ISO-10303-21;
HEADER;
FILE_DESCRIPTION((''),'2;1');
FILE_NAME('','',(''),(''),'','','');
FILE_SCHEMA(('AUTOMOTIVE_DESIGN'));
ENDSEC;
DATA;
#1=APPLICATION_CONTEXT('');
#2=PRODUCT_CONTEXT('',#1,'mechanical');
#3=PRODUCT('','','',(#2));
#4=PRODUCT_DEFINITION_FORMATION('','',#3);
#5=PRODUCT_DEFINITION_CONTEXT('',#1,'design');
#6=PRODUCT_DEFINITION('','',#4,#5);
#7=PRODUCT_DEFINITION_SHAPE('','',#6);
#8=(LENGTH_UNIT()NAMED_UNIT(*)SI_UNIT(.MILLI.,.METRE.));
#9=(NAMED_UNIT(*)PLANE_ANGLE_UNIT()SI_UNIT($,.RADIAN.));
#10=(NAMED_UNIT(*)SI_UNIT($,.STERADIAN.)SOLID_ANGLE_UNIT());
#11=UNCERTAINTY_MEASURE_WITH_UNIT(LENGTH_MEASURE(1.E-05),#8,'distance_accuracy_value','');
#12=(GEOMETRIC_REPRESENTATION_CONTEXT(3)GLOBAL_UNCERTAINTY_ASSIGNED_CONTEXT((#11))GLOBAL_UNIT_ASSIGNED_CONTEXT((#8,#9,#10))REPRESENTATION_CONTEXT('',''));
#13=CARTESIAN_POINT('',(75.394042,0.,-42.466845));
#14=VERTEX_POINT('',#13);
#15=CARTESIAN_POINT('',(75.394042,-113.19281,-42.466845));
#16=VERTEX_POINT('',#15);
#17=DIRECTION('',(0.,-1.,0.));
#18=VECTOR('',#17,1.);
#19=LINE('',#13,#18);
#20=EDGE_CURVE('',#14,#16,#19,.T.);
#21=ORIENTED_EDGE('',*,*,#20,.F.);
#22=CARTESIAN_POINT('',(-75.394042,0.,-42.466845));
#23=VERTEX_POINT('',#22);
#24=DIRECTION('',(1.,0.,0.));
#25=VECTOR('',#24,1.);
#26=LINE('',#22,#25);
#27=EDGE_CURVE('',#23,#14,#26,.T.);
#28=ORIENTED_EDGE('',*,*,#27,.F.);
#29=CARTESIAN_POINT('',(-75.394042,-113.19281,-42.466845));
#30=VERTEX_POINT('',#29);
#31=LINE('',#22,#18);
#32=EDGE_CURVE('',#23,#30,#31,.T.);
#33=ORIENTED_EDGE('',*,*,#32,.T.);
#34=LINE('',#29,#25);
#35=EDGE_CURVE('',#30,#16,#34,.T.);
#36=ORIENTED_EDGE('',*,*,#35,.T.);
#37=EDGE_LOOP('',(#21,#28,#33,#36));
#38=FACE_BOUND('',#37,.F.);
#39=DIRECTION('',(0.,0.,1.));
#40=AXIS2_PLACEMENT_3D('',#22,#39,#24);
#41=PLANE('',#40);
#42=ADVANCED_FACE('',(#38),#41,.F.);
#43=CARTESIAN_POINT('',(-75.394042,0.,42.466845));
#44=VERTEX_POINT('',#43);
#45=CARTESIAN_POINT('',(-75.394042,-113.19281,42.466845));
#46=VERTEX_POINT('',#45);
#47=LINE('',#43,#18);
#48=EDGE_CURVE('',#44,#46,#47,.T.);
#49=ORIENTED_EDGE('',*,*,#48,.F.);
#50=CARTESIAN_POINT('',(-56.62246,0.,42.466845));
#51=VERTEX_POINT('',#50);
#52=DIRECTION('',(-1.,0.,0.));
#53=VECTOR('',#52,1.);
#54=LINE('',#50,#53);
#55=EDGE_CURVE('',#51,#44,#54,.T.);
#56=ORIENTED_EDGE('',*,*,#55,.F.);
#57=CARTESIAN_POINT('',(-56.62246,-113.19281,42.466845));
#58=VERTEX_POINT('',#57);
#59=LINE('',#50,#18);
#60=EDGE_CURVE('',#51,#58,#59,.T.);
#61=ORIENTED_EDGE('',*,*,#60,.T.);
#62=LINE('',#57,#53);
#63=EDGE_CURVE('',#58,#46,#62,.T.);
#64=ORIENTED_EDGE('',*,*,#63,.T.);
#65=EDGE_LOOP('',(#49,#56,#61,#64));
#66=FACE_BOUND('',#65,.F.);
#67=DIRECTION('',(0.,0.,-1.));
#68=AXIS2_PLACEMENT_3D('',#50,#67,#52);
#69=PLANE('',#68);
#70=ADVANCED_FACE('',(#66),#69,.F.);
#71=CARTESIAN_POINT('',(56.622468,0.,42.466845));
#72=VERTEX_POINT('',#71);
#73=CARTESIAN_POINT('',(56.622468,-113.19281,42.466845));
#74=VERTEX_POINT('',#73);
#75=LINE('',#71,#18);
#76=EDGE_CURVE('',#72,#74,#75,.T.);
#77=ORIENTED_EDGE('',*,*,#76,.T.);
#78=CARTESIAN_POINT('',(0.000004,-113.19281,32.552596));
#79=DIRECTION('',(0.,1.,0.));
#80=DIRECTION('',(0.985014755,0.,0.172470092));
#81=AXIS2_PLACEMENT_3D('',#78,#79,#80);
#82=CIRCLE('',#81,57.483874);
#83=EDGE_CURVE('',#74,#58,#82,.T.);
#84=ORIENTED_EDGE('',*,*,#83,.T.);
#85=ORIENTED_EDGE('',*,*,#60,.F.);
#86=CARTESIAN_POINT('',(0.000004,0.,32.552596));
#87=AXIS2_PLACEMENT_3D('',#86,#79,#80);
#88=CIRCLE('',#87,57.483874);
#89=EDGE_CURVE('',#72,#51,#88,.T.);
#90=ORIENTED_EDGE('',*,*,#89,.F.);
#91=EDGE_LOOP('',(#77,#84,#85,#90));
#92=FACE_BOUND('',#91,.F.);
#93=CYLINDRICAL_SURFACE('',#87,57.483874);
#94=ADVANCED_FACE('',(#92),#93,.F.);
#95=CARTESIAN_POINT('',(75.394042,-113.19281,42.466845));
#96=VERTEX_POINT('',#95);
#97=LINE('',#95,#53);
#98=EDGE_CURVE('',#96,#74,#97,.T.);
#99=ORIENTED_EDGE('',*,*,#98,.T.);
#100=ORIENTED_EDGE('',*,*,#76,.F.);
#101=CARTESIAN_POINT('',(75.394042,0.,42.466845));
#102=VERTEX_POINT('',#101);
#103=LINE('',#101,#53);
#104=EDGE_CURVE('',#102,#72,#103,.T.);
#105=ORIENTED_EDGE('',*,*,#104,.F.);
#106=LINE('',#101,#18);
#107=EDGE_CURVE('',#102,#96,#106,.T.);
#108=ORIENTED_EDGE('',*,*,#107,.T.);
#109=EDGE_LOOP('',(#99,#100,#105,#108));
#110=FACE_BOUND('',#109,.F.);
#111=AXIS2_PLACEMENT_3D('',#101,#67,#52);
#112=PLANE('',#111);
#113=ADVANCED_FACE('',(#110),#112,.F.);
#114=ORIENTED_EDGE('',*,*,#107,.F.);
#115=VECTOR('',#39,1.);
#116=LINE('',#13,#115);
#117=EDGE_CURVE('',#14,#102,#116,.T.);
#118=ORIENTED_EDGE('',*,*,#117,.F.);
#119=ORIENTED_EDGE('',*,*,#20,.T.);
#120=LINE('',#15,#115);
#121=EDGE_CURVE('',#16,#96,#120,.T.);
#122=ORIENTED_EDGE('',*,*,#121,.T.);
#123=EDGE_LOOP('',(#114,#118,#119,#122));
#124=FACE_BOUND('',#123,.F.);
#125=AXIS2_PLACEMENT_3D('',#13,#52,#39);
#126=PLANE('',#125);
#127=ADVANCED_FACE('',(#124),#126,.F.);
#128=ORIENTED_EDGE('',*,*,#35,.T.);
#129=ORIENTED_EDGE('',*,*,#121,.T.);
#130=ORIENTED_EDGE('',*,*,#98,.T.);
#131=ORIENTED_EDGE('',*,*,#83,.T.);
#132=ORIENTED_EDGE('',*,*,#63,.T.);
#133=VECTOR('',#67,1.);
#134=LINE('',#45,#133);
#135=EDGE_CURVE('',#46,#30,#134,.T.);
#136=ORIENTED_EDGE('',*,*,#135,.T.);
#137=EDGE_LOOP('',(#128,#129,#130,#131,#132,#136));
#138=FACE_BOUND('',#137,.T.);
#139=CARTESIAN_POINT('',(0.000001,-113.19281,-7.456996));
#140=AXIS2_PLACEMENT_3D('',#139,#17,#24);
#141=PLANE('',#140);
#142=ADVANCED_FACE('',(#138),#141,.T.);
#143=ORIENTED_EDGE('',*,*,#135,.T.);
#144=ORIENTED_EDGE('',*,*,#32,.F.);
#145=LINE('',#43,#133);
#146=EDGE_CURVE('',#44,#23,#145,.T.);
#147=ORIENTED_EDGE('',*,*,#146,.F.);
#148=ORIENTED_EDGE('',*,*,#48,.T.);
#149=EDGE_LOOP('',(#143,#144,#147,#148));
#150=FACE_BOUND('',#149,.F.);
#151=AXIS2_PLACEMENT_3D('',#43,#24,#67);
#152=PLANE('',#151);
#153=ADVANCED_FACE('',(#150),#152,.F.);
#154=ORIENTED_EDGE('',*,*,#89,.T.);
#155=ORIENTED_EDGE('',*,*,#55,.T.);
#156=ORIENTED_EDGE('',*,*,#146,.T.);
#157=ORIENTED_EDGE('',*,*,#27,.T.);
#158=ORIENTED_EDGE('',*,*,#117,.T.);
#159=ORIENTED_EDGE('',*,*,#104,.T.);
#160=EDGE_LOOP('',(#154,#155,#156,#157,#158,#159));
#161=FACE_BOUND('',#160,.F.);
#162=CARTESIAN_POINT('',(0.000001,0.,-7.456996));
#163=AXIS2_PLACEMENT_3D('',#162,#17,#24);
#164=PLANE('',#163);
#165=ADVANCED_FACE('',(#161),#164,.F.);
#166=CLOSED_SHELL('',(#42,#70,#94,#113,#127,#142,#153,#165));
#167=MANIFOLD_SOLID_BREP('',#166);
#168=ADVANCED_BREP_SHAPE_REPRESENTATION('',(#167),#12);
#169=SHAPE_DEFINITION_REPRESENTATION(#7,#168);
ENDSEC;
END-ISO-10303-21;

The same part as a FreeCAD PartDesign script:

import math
import FreeCAD as App
import Part
import Sketcher

V = App.Vector
Q = App.Units.Quantity

doc = App.newDocument("Part")
params = doc.addObject("Spreadsheet::Sheet", "Params")
for row, (alias, value) in enumerate([
    ("pad1_length", "113.19281 mm"),
], start=1):
    params.set(f"A{row}", alias)
    params.set(f"B{row}", "=" + value)
    params.setAlias(f"B{row}", alias)

body = doc.addObject("PartDesign::Body", "Body")

# Sketch on XZ plane
sketch1 = body.newObject("Sketcher::SketchObject", "Sketch")
sketch1.AttachmentSupport = (doc.getObject("XZ_Plane"), [""])
sketch1.MapMode = "FlatFace"
sketch1.addGeometry(Part.LineSegment(V(75.394042, -42.466845, 0), V(75.394042, 42.466845, 0)), False)
sketch1.addGeometry(Part.LineSegment(V(75.394042, 42.466845, 0), V(56.622468, 42.466845, 0)), False)
sketch1.addGeometry(Part.ArcOfCircle(Part.Circle(V(0.000004, 32.552596, 0), V(0, 0, 1), 57.483874), math.radians(170.068533), math.radians(369.931467)), False)
sketch1.addGeometry(Part.LineSegment(V(-56.62246, 42.466845, 0), V(-75.394042, 42.466845, 0)), False)
sketch1.addGeometry(Part.LineSegment(V(-75.394042, 42.466845, 0), V(-75.394042, -42.466845, 0)), False)
sketch1.addGeometry(Part.LineSegment(V(-75.394042, -42.466845, 0), V(75.394042, -42.466845, 0)), False)
sketch1.addConstraint(Sketcher.Constraint("Coincident", 0, 2, 1, 1))
sketch1.addConstraint(Sketcher.Constraint("Coincident", 1, 2, 2, 2))
sketch1.addConstraint(Sketcher.Constraint("Coincident", 2, 1, 3, 1))
sketch1.addConstraint(Sketcher.Constraint("Coincident", 3, 2, 4, 1))
sketch1.addConstraint(Sketcher.Constraint("Coincident", 4, 2, 5, 1))
sketch1.addConstraint(Sketcher.Constraint("Coincident", 5, 2, 0, 1))
sketch1.addConstraint(Sketcher.Constraint("Vertical", 0))
sketch1.addConstraint(Sketcher.Constraint("Horizontal", 1))
sketch1.addConstraint(Sketcher.Constraint("Horizontal", 3))
sketch1.addConstraint(Sketcher.Constraint("Vertical", 4))
sketch1.addConstraint(Sketcher.Constraint("Horizontal", 5))
sketch1.addConstraint(Sketcher.Constraint("Symmetric", 0, 2, 4, 2, -1, 1))
sketch1.addConstraint(Sketcher.Constraint("Symmetric", 1, 2, 2, 1, -2))
sketch1.addConstraint(Sketcher.Constraint("Radius", 2, Q("57.483874 mm")))
sketch1.addConstraint(Sketcher.Constraint("DistanceY", 0, 1, 0, 2, Q("84.93369 mm")))
sketch1.addConstraint(Sketcher.Constraint("DistanceX", 2, 1, 0, 2, Q("132.016502 mm")))
sketch1.addConstraint(Sketcher.Constraint("DistanceX", 1, 2, 1, 1, Q("18.771574 mm")))
pad1 = body.newObject("PartDesign::Pad", "Pad")
pad1.Profile = sketch1
pad1.setExpression("Length", "Params.pad1_length")

doc.recompute()
